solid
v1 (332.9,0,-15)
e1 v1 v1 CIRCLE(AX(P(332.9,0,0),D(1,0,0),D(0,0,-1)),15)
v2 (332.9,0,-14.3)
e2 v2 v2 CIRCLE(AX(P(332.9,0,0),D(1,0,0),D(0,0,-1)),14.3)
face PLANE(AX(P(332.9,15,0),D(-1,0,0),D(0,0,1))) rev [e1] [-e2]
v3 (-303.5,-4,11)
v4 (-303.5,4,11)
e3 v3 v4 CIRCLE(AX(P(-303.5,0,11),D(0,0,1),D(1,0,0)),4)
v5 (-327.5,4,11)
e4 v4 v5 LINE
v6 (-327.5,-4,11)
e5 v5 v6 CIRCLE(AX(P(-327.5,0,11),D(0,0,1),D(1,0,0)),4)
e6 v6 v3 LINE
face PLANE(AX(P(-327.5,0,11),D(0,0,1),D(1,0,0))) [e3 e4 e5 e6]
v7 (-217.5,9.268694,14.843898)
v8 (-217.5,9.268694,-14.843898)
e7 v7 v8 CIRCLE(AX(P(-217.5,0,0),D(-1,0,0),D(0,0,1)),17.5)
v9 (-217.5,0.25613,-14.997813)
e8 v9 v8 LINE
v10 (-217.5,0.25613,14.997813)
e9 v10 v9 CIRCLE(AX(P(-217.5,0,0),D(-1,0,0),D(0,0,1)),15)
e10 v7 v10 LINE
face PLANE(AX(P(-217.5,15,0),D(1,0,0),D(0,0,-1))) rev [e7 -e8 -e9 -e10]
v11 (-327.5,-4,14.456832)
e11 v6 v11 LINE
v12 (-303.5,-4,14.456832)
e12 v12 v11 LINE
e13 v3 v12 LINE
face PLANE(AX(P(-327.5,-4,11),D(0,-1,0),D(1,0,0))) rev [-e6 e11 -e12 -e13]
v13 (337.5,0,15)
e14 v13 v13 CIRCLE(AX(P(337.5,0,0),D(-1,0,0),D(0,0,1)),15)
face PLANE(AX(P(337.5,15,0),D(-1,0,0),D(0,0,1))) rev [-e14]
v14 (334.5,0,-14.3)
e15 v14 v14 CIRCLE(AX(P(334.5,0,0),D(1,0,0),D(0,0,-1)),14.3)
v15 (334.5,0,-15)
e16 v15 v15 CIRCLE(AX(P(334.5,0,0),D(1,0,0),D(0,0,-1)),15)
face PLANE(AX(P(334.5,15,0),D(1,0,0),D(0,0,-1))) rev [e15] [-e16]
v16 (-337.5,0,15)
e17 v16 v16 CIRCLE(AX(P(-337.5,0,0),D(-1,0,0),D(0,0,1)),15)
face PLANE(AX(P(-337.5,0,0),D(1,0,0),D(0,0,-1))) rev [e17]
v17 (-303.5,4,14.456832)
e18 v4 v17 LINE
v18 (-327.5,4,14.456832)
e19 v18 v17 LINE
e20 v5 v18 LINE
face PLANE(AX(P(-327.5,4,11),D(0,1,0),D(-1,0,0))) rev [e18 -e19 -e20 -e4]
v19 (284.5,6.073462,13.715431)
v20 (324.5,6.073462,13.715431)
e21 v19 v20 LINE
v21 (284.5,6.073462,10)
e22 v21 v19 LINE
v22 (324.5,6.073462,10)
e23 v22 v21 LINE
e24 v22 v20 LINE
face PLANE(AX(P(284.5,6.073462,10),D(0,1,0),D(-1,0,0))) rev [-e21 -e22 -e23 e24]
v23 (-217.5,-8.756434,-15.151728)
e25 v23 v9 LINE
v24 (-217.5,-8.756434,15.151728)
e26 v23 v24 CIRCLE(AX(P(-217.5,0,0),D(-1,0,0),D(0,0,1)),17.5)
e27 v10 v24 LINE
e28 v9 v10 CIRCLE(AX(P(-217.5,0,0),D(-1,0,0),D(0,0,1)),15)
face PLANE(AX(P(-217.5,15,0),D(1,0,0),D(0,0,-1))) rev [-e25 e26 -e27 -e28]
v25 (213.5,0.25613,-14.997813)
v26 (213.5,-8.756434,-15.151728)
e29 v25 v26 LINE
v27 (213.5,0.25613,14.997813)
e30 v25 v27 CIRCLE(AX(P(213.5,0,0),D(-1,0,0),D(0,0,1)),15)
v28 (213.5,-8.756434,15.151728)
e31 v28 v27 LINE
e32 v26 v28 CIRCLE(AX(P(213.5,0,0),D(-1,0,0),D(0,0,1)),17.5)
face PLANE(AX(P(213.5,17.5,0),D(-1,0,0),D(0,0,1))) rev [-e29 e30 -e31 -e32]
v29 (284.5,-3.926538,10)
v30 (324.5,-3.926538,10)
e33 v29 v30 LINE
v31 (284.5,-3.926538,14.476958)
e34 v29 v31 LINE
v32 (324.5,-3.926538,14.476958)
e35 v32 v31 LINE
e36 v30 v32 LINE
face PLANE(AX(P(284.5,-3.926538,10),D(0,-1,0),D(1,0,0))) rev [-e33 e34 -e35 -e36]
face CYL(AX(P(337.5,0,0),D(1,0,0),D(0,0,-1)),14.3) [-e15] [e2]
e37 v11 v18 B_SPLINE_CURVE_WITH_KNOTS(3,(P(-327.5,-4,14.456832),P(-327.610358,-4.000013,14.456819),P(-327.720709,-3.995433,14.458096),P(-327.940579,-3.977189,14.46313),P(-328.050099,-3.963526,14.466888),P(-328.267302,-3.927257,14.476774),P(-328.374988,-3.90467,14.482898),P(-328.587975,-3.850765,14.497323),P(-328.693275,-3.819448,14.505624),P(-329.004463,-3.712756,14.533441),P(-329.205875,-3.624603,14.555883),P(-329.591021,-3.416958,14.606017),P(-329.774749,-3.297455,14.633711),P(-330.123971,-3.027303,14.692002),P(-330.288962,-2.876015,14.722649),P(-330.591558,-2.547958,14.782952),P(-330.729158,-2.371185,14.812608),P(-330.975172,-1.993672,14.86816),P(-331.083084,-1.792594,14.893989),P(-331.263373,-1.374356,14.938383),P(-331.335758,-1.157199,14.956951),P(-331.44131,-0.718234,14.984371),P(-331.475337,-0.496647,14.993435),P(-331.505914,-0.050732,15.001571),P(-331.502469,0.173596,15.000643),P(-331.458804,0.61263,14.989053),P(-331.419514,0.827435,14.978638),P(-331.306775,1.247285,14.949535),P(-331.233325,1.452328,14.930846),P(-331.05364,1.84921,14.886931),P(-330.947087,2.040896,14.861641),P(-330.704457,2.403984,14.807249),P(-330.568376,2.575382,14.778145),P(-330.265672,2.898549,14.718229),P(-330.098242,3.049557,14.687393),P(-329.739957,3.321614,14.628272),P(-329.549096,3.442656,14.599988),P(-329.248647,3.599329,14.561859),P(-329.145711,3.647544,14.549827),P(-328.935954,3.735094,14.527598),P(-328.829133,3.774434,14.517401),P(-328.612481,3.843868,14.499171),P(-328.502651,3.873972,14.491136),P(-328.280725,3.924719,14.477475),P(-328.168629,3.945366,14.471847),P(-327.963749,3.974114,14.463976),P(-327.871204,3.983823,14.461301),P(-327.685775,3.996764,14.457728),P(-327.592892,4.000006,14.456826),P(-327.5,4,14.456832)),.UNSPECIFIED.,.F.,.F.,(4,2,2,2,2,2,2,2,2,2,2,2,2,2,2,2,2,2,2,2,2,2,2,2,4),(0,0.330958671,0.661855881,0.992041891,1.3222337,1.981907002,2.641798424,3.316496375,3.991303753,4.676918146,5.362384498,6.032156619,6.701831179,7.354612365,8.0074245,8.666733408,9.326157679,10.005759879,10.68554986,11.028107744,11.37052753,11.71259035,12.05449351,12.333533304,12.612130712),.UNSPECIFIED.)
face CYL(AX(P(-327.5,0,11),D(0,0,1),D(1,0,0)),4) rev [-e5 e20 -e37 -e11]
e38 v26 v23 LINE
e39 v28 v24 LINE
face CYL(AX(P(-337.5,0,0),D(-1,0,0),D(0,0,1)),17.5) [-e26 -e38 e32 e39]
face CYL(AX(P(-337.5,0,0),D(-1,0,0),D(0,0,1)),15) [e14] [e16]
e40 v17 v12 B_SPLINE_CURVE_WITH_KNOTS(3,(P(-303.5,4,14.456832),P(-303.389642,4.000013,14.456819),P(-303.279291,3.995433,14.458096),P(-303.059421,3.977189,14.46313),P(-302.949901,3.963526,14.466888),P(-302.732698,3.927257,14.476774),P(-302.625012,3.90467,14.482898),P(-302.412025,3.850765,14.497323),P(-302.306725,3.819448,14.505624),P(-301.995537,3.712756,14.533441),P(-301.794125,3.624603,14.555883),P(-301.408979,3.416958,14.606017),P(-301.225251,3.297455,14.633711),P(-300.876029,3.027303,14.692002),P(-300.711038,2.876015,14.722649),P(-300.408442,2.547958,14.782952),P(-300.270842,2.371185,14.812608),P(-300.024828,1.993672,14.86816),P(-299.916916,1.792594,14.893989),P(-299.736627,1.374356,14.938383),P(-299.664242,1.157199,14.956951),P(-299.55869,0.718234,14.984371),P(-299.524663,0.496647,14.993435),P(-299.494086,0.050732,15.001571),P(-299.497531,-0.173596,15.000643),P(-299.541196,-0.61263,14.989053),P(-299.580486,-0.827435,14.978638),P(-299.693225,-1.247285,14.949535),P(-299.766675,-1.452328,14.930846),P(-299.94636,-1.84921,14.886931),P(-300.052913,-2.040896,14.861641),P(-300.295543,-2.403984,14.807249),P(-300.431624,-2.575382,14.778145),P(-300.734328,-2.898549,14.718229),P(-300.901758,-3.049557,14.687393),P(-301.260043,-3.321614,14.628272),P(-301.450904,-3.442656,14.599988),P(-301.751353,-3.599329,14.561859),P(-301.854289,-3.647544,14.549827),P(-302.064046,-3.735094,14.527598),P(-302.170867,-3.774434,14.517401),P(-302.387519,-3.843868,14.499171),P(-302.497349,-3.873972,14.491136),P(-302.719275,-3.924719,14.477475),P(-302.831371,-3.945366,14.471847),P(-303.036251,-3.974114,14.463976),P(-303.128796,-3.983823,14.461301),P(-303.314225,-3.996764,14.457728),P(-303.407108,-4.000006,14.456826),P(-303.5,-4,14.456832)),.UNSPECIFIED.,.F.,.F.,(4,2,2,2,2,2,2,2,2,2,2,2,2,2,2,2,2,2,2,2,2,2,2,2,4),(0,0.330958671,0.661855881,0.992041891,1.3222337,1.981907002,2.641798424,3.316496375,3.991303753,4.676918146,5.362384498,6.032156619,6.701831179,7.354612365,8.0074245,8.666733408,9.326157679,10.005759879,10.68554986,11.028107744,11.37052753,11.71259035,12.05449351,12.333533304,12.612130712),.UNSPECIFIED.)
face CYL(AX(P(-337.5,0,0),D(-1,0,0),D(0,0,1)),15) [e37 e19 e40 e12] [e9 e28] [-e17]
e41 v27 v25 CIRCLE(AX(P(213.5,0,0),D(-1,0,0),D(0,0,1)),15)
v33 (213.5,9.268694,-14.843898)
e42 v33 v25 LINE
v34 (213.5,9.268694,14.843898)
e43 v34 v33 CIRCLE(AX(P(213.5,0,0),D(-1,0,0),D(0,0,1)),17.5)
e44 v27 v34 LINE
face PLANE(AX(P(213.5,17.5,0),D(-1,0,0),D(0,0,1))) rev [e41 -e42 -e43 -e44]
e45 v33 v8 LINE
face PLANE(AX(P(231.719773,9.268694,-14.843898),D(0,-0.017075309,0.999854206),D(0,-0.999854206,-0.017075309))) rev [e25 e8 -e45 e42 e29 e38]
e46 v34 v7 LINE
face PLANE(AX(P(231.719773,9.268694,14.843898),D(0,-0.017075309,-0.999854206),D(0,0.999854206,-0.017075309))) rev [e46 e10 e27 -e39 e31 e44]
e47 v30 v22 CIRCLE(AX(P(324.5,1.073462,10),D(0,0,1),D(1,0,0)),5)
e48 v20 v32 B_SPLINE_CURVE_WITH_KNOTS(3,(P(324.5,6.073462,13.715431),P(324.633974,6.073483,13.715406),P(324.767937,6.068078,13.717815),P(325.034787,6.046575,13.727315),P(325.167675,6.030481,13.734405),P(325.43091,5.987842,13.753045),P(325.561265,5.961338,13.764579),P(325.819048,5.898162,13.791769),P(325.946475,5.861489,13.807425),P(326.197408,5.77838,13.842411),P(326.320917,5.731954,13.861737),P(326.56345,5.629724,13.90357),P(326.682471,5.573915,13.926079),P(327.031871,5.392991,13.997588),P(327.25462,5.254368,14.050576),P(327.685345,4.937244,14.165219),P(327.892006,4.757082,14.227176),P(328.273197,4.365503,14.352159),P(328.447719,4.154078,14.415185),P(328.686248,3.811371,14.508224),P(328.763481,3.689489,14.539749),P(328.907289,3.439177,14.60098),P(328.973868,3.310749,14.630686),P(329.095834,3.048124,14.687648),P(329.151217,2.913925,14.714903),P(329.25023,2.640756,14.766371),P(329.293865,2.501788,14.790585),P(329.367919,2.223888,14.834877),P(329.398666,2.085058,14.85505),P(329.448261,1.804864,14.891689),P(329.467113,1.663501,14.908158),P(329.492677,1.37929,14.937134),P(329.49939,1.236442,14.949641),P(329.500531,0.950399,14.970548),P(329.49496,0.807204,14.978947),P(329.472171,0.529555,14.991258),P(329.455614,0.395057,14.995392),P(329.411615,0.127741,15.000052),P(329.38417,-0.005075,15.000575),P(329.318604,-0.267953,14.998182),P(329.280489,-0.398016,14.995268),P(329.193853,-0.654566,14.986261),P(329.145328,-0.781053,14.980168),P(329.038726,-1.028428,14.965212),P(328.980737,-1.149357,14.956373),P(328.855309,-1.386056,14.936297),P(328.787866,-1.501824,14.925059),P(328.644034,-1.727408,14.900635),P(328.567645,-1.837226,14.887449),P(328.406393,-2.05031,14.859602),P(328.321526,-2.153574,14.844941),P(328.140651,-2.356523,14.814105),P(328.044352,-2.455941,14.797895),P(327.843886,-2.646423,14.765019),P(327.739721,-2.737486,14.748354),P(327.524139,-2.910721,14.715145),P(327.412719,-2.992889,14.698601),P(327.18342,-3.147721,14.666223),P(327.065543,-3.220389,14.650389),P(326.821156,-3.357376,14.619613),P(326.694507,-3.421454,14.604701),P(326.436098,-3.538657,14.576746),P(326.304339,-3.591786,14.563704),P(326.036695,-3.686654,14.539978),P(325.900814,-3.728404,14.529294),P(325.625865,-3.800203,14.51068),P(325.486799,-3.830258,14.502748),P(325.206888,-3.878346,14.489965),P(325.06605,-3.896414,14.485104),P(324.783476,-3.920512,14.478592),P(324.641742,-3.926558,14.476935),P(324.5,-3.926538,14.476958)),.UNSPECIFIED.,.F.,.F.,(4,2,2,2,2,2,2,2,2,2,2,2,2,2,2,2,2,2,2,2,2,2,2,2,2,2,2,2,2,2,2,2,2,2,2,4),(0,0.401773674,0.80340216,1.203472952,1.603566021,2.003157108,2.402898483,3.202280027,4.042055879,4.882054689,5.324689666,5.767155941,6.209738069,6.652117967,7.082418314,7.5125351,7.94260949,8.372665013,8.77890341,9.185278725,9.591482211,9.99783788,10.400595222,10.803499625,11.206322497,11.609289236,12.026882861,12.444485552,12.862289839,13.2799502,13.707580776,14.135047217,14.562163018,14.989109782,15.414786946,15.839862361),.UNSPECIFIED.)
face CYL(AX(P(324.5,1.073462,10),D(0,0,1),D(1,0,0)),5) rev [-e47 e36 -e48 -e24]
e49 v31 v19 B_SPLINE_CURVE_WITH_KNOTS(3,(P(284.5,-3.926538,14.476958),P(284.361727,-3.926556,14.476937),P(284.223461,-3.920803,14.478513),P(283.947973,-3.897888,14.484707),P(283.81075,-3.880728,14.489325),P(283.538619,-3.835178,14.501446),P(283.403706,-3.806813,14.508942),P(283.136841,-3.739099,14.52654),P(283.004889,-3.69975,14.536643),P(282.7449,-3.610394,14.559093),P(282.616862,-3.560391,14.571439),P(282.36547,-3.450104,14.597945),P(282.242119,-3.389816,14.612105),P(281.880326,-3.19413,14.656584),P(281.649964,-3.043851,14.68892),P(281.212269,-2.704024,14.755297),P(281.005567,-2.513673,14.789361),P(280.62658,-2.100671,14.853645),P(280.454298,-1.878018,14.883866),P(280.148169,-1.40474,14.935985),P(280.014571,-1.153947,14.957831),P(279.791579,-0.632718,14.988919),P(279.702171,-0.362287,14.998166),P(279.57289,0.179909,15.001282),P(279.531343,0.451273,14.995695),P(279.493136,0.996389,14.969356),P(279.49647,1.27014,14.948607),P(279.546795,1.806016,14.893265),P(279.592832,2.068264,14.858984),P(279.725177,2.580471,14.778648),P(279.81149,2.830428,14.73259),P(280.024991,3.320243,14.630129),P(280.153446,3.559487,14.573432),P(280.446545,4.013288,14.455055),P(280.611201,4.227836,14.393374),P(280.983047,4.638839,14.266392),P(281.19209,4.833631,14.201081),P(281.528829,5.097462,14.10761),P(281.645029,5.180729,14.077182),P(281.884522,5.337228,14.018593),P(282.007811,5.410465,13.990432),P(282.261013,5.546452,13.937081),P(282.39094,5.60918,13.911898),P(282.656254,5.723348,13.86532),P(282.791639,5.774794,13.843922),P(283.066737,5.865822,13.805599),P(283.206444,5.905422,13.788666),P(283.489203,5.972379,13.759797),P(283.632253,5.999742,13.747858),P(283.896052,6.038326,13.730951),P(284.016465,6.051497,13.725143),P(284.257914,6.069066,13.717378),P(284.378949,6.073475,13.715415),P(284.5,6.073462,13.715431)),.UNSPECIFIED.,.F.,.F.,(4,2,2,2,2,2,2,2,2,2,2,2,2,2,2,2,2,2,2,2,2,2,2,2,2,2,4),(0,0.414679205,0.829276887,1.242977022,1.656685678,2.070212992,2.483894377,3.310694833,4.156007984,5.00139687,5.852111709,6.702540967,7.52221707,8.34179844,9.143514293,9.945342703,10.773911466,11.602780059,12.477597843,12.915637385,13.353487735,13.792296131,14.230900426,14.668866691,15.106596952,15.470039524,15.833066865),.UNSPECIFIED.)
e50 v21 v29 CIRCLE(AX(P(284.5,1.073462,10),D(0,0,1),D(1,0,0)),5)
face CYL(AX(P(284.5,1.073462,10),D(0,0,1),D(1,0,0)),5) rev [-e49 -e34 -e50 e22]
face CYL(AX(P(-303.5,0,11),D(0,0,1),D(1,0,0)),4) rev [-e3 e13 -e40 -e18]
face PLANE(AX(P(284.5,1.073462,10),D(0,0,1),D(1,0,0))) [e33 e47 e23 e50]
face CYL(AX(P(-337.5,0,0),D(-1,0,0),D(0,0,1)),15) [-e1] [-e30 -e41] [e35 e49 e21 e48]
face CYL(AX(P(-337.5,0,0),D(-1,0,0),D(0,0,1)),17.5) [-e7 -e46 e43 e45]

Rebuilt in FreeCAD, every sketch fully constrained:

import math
import FreeCAD as App
import Part
import Sketcher
from FreeCAD import Vector


def add_polygon(sketch, points):
    """Adds a closed chain of lines whose ends are joined by coincident constraints."""
    first, n = sketch.GeometryCount, len(points)
    for a, b in zip(points, points[1:] + points[:1]):
        sketch.addGeometry(Part.LineSegment(App.Vector(*a, 0), App.Vector(*b, 0)), False)
    for i in range(n):
        sketch.addConstraint(Sketcher.Constraint("Coincident", first + i, 2, first + (i + 1) % n, 1))

doc = App.newDocument("Part")
body = doc.addObject("PartDesign::Body", "Body")

# Sketch on XY plane
sketch1 = body.newObject("Sketcher::SketchObject", "Sketch")
sketch1.AttachmentSupport = (doc.getObject("XY_Plane"), [""])
sketch1.MapMode = "FlatFace"
add_polygon(sketch1, [(-337.5, 0), (337.5, 0), (337.5, 15), (213.5, 15), (213.5, 17.5), (-217.5, 17.5), (-217.5, 15), (-337.5, 15)])  # lines 0-7
sketch1.addConstraint(Sketcher.Constraint("Horizontal", 0))
sketch1.addConstraint(Sketcher.Constraint("Vertical", 1))
sketch1.addConstraint(Sketcher.Constraint("Horizontal", 2))
sketch1.addConstraint(Sketcher.Constraint("Vertical", 3))
sketch1.addConstraint(Sketcher.Constraint("Horizontal", 4))
sketch1.addConstraint(Sketcher.Constraint("Vertical", 5))
sketch1.addConstraint(Sketcher.Constraint("Horizontal", 6))
sketch1.addConstraint(Sketcher.Constraint("Vertical", 7))
sketch1.addConstraint(Sketcher.Constraint("Symmetric", 0, 2, 7, 2, -1, 1))
sketch1.addConstraint(Sketcher.Constraint("Horizontal", 2, 2, 5, 2))
sketch1.addConstraint(Sketcher.Constraint("DistanceX", 0, 1, 0, 2, 675.0))
sketch1.addConstraint(Sketcher.Constraint("DistanceX", 2, 2, 2, 1, 124.0))
sketch1.addConstraint(Sketcher.Constraint("DistanceX", 4, 2, 4, 1, 431.0))
sketch1.addConstraint(Sketcher.Constraint("DistanceY", 1, 1, 1, 2, 15.0))
sketch1.addConstraint(Sketcher.Constraint("DistanceY", 3, 1, 3, 2, 2.5))
revolution = body.newObject("PartDesign::Revolution", "Revolution")
revolution.Profile = sketch1
revolution.ReferenceAxis = (sketch1, ["H_Axis"])
revolution.Angle = 360

# Sketch on YZ plane
sketch2 = body.newObject("Sketcher::SketchObject", "Sketch001")
sketch2.AttachmentSupport = (doc.getObject("YZ_Plane"), [""])
sketch2.MapMode = "FlatFace"
sketch2.AttachmentOffset = App.Placement(Vector(0, 0, -217.5), App.Rotation())
sketch2.addGeometry(Part.LineSegment(Vector(-9, -15, 0), Vector(9, -15, 0)), False)
sketch2.addGeometry(Part.ArcOfCircle(Part.Circle(Vector(0, 0, 0), Vector(0, 0, 1), 18), math.radians(-120), math.radians(-58)), False)
sketch2.addGeometry(Part.LineSegment(Vector(9, 15, 0), Vector(-9, 15, 0)), False)
sketch2.addGeometry(Part.ArcOfCircle(Part.Circle(Vector(0, 0, 0), Vector(0, 0, 1), 18), math.radians(58), math.radians(120)), False)
sketch2.addConstraint(Sketcher.Constraint("Coincident", 0, 1, 1, 1))
sketch2.addConstraint(Sketcher.Constraint("Coincident", 1, 2, 0, 2))
sketch2.addConstraint(Sketcher.Constraint("Coincident", 2, 1, 3, 1))
sketch2.addConstraint(Sketcher.Constraint("Coincident", 3, 2, 2, 2))
sketch2.addConstraint(Sketcher.Constraint("Coincident", 1, 3, -1, 1))
sketch2.addConstraint(Sketcher.Constraint("Coincident", 3, 3, -1, 1))
sketch2.addConstraint(Sketcher.Constraint("Equal", 1, 3))
sketch2.addConstraint(Sketcher.Constraint("Vertical", 1, 2, 2, 1))
sketch2.addConstraint(Sketcher.Constraint("Vertical", 0, 1, 3, 2))
sketch2.addConstraint(Sketcher.Constraint("Radius", 1, 17.5))
sketch2.addConstraint(Sketcher.Constraint("DistanceY", 1, 2, -1, 1, 14.843898))
sketch2.addConstraint(Sketcher.Constraint("DistanceX", 0, 1, 1, 2, 18.025128))
pocket1 = body.newObject("PartDesign::Pocket", "Pocket")
pocket1.Profile = sketch2
pocket1.Length = 431
pocket1.Reversed = True

# Sketch on XY plane
sketch3 = body.newObject("Sketcher::SketchObject", "Sketch002")
sketch3.AttachmentSupport = (doc.getObject("XY_Plane"), [""])
sketch3.MapMode = "FlatFace"
sketch3.AttachmentOffset = App.Placement(Vector(0, 0, 15), App.Rotation())
sketch3.addGeometry(Part.LineSegment(Vector(-303.5, 4, 0), Vector(-327.5, 4, 0)), False)
sketch3.addGeometry(Part.ArcOfCircle(Part.Circle(Vector(-327.5, 0, 0), Vector(0, 0, 1), 4), math.radians(90), math.radians(270)), False)
sketch3.addGeometry(Part.LineSegment(Vector(-327.5, -4, 0), Vector(-303.5, -4, 0)), False)
sketch3.addGeometry(Part.ArcOfCircle(Part.Circle(Vector(-303.5, 0, 0), Vector(0, 0, 1), 4), math.radians(-90), math.radians(90)), False)
sketch3.addConstraint(Sketcher.Constraint("Tangent", 0, 2, 1, 1))
sketch3.addConstraint(Sketcher.Constraint("Tangent", 1, 2, 2, 1))
sketch3.addConstraint(Sketcher.Constraint("Tangent", 2, 2, 3, 1))
sketch3.addConstraint(Sketcher.Constraint("Tangent", 3, 2, 0, 1))
sketch3.addConstraint(Sketcher.Constraint("Horizontal", 0))
sketch3.addConstraint(Sketcher.Constraint("Horizontal", 2))
sketch3.addConstraint(Sketcher.Constraint("PointOnObject", 1, 3, -1))
sketch3.addConstraint(Sketcher.Constraint("Radius", 1, 4.0))
sketch3.addConstraint(Sketcher.Constraint("DistanceX", 0, 2, 0, 1, 24.0))
sketch3.addConstraint(Sketcher.Constraint("DistanceX", 1, 3, -1, 1, 327.5))
pocket2 = body.newObject("PartDesign::Pocket", "Pocket001")
pocket2.Profile = sketch3
pocket2.Length = 4

# Sketch on XY plane
sketch4 = body.newObject("Sketcher::SketchObject", "Sketch003")
sketch4.AttachmentSupport = (doc.getObject("XY_Plane"), [""])
sketch4.MapMode = "FlatFace"
add_polygon(sketch4, [(332.9, 15), (332.9, 14.3), (334.5, 14.3), (334.5, 15)])  # lines 0-3
sketch4.addConstraint(Sketcher.Constraint("Vertical", 0))
sketch4.addConstraint(Sketcher.Constraint("Horizontal", 1))
sketch4.addConstraint(Sketcher.Constraint("Vertical", 2))
sketch4.addConstraint(Sketcher.Constraint("Horizontal", 3))
sketch4.addConstraint(Sketcher.Constraint("DistanceX", 1, 1, 1, 2, 1.6))
sketch4.addConstraint(Sketcher.Constraint("DistanceY", 0, 2, 0, 1, 0.7))
sketch4.addConstraint(Sketcher.Constraint("DistanceY", -1, 1, 2, 2, 15.0))
sketch4.addConstraint(Sketcher.Constraint("DistanceX", -1, 1, 0, 2, 332.9))
groove = body.newObject("PartDesign::Groove", "Groove")
groove.Profile = sketch4
groove.ReferenceAxis = (sketch4, ["H_Axis"])
groove.Angle = 360

# Sketch on XY plane
sketch5 = body.newObject("Sketcher::SketchObject", "Sketch004")
sketch5.AttachmentSupport = (doc.getObject("XY_Plane"), [""])
sketch5.MapMode = "FlatFace"
sketch5.AttachmentOffset = App.Placement(Vector(0, 0, 15), App.Rotation())
sketch5.addGeometry(Part.LineSegment(Vector(324, 6, 0), Vector(284, 6, 0)), False)
sketch5.addGeometry(Part.ArcOfCircle(Part.Circle(Vector(284, 1, 0), Vector(0, 0, 1), 5), math.radians(90), math.radians(270)), False)
sketch5.addGeometry(Part.LineSegment(Vector(284, -4, 0), Vector(324, -4, 0)), False)
sketch5.addGeometry(Part.ArcOfCircle(Part.Circle(Vector(324, 1, 0), Vector(0, 0, 1), 5), math.radians(-90), math.radians(90)), False)
sketch5.addConstraint(Sketcher.Constraint("Tangent", 0, 2, 1, 1))
sketch5.addConstraint(Sketcher.Constraint("Tangent", 1, 2, 2, 1))
sketch5.addConstraint(Sketcher.Constraint("Tangent", 2, 2, 3, 1))
sketch5.addConstraint(Sketcher.Constraint("Tangent", 3, 2, 0, 1))
sketch5.addConstraint(Sketcher.Constraint("Horizontal", 0))
sketch5.addConstraint(Sketcher.Constraint("Horizontal", 2))
sketch5.addConstraint(Sketcher.Constraint("Radius", 1, 5.0))
sketch5.addConstraint(Sketcher.Constraint("DistanceX", 0, 2, 0, 1, 40.0))
sketch5.addConstraint(Sketcher.Constraint("DistanceX", -1, 1, 1, 3, 284.5))
sketch5.addConstraint(Sketcher.Constraint("DistanceY", -1, 1, 1, 3, 1.073462))
pocket3 = body.newObject("PartDesign::Pocket", "Pocket002")
pocket3.Profile = sketch5
pocket3.Length = 5

doc.recompute()
